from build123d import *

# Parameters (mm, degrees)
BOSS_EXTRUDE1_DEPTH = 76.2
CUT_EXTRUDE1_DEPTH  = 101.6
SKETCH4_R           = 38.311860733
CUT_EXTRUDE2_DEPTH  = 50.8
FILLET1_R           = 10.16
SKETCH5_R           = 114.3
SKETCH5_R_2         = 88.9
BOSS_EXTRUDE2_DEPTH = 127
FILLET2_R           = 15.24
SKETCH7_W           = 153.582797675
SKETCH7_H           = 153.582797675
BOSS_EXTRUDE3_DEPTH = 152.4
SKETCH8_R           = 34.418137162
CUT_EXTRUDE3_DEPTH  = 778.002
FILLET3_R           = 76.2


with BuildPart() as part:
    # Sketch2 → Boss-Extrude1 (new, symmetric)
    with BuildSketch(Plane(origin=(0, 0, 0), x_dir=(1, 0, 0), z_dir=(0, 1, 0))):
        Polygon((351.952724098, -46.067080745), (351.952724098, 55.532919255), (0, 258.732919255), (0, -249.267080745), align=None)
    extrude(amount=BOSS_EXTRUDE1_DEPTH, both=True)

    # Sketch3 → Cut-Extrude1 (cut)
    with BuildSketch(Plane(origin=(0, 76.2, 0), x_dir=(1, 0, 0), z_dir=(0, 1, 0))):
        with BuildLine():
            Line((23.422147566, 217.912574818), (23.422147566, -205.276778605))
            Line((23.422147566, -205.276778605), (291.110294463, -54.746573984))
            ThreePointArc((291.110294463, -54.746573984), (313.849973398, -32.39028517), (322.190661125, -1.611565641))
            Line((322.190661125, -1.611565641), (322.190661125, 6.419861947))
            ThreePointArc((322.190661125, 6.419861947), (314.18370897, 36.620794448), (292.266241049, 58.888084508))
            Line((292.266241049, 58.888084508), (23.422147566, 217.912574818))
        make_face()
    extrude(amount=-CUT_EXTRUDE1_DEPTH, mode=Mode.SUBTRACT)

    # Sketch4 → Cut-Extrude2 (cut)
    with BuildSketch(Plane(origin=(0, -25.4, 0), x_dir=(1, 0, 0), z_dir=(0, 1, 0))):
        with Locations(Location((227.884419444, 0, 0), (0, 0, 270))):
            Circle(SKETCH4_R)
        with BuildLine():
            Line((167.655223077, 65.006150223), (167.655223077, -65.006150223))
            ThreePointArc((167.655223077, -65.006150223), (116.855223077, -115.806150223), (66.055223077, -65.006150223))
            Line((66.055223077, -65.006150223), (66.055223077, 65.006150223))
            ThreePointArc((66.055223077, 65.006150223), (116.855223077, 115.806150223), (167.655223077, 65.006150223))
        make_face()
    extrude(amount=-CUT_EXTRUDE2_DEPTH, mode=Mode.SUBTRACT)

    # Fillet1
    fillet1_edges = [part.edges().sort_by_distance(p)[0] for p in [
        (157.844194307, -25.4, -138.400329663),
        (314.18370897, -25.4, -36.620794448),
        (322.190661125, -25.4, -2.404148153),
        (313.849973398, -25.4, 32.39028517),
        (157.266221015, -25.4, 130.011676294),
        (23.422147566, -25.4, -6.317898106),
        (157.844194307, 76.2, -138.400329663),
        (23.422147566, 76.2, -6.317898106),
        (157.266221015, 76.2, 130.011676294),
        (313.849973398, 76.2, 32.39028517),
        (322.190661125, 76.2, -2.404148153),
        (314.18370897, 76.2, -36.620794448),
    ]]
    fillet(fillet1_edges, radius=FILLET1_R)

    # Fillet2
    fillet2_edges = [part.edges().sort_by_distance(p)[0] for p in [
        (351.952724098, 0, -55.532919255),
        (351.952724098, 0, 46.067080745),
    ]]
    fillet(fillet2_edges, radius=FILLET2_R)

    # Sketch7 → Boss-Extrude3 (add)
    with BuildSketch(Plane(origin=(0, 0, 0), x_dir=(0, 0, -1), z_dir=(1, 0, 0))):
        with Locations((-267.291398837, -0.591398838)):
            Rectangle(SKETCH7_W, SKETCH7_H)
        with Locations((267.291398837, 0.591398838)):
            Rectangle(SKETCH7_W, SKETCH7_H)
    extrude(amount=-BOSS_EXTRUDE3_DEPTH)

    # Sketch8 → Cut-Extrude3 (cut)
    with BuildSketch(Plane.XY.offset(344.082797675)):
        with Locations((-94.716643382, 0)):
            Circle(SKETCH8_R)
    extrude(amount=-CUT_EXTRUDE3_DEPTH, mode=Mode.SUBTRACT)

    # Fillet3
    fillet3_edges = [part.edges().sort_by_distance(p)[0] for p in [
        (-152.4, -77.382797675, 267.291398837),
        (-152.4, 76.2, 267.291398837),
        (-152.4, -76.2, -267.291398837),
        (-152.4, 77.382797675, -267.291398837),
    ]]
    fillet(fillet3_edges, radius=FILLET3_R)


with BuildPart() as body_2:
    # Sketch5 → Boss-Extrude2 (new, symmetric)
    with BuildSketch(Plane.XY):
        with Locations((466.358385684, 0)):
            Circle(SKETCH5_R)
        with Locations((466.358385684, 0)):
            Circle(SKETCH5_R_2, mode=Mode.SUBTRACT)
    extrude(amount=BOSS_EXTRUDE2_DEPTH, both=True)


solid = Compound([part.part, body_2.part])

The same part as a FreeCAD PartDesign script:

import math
import FreeCAD as App
import Part
import Sketcher
from FreeCAD import Vector
Q = App.Units.Quantity


def edges_at(feature, points):
    """Names of the edges that pass closest to the given points."""
    edges = feature.Shape.Edges
    near = lambda p: min(range(len(edges)), key=lambda i: edges[i].distToShape(Part.Vertex(*p))[0])
    return sorted({f"Edge{near(p) + 1}" for p in points})

doc = App.newDocument("Part")
body = doc.addObject("PartDesign::Body", "Body")

sketch1 = body.newObject("Sketcher::SketchObject", "Sketch")
sketch1.AttachmentSupport = (doc.getObject("XZ_Plane"), [""])
sketch1.MapMode = "FlatFace"
sketch1.addGeometry(Part.LineSegment(Vector(351.952724, 46.067081, 0), Vector(351.952724, -55.532919, 0)), False)
sketch1.addGeometry(Part.LineSegment(Vector(351.952724, -55.532919, 0), Vector(0, -258.732919, 0)), False)
sketch1.addGeometry(Part.LineSegment(Vector(0, -258.732919, 0), Vector(0, 249.267081, 0)), False)
sketch1.addGeometry(Part.LineSegment(Vector(0, 249.267081, 0), Vector(351.952724, 46.067081, 0)), False)
sketch1.addConstraint(Sketcher.Constraint("Coincident", 0, 2, 1, 1))
sketch1.addConstraint(Sketcher.Constraint("Coincident", 1, 2, 2, 1))
sketch1.addConstraint(Sketcher.Constraint("Coincident", 2, 2, 3, 1))
sketch1.addConstraint(Sketcher.Constraint("Coincident", 3, 2, 0, 1))
sketch1.addConstraint(Sketcher.Constraint("Vertical", 0))
sketch1.addConstraint(Sketcher.Constraint("Vertical", 2))
sketch1.addConstraint(Sketcher.Constraint("PointOnObject", 1, 2, -2))
sketch1.addConstraint(Sketcher.Constraint("Equal", 1, 3))
sketch1.addConstraint(Sketcher.Constraint("DistanceY", 0, 2, 0, 1, Q("4 in")))
sketch1.addConstraint(Sketcher.Constraint("DistanceY", 2, 1, 2, 2, Q("20 in")))
sketch1.addConstraint(Sketcher.Constraint("Distance", 1, Q("16 in")))
sketch1.addConstraint(Sketcher.Constraint("DistanceY", 0, 2, -1, 1, Q("55.532919 mm")))
pad1 = body.newObject("PartDesign::Pad", "Pad")
pad1.Profile = sketch1
pad1.Length = Q("6 in")
pad1.Midplane = True

sketch2 = body.newObject("Sketcher::SketchObject", "Sketch001")
sketch2.AttachmentSupport = (doc.getObject("XZ_Plane"), [""])
sketch2.MapMode = "FlatFace"
sketch2.AttachmentOffset = App.Placement(Vector(0, 0, -3 * 25.4), App.Rotation())
sketch2.addGeometry(Part.LineSegment(Vector(23.422148, -217.912575, 0), Vector(23.422148, 205.276779, 0)), False)
sketch2.addGeometry(Part.LineSegment(Vector(23.422148, 205.276779, 0), Vector(291.110294, 54.746574, 0)), False)
sketch2.addGeometry(Part.ArcOfCircle(Part.Circle(Vector(261.230661, 1.611566, 0), Vector(0, 0, 1), 60.96), math.radians(0), math.radians(60.649463)), False)
sketch2.addGeometry(Part.LineSegment(Vector(322.190661, 1.611566, 0), Vector(322.190661, -6.419862, 0)), False)
sketch2.addGeometry(Part.ArcOfCircle(Part.Circle(Vector(261.230661, -6.419862, 0), Vector(0, 0, 1), 60.96), math.radians(-59.395179), math.radians(0)), False)
sketch2.addGeometry(Part.LineSegment(Vector(292.266241, -58.888085, 0), Vector(23.422148, -217.912575, 0)), False)
sketch2.addConstraint(Sketcher.Constraint("Coincident", 0, 2, 1, 1))
sketch2.addConstraint(Sketcher.Constraint("Tangent", 1, 2, 2, 2))
sketch2.addConstraint(Sketcher.Constraint("Tangent", 2, 1, 3, 1))
sketch2.addConstraint(Sketcher.Constraint("Tangent", 3, 2, 4, 2))
sketch2.addConstraint(Sketcher.Constraint("Tangent", 4, 1, 5, 1))
sketch2.addConstraint(Sketcher.Constraint("Coincident", 5, 2, 0, 1))
sketch2.addConstraint(Sketcher.Constraint("Vertical", 0))
sketch2.addConstraint(Sketcher.Constraint("Vertical", 3))
sketch2.addConstraint(Sketcher.Constraint("Equal", 2, 4))
sketch2.addConstraint(Sketcher.Constraint("Radius", 2, Q("2.4 in")))
sketch2.addConstraint(Sketcher.Constraint("DistanceY", 0, 1, 0, 2, Q("423.189353 mm")))
sketch2.addConstraint(Sketcher.Constraint("DistanceY", 3, 2, 3, 1, Q("8.031428 mm")))
sketch2.addConstraint(Sketcher.Constraint("DistanceX", -1, 1, 2, 3, Q("261.230661 mm")))
sketch2.addConstraint(Sketcher.Constraint("DistanceY", 4, 3, -1, 1, Q("6.419862 mm")))
sketch2.addConstraint(Sketcher.Constraint("DistanceY", -1, 1, 0, 2, Q("205.276779 mm")))
sketch2.addConstraint(Sketcher.Constraint("DistanceY", 2, 3, 1, 2, Q("53.135008 mm")))
pocket1 = body.newObject("PartDesign::Pocket", "Pocket")
pocket1.Profile = sketch2
pocket1.Length = Q("4 in")
pocket1.Reversed = True

sketch3 = body.newObject("Sketcher::SketchObject", "Sketch002")
sketch3.AttachmentSupport = (doc.getObject("XZ_Plane"), [""])
sketch3.MapMode = "FlatFace"
sketch3.AttachmentOffset = App.Placement(Vector(0, 0, 1 * 25.4), App.Rotation())
sketch3.addGeometry(Part.Circle(Vector(227.884419, 0, 0), Vector(0, 0, 1), 38.311861), False)
sketch3.addGeometry(Part.LineSegment(Vector(167.655223, 65.00615, 0), Vector(167.655223, -65.00615, 0)), False)
sketch3.addGeometry(Part.ArcOfCircle(Part.Circle(Vector(116.855223, -65.00615, 0), Vector(0, 0, 1), 50.8), math.radians(180), math.radians(360)), False)
sketch3.addGeometry(Part.LineSegment(Vector(66.055223, -65.00615, 0), Vector(66.055223, 65.00615, 0)), False)
sketch3.addGeometry(Part.ArcOfCircle(Part.Circle(Vector(116.855223, 65.00615, 0), Vector(0, 0, 1), 50.8), math.radians(0), math.radians(180)), False)
sketch3.addConstraint(Sketcher.Constraint("Tangent", 1, 2, 2, 2))
sketch3.addConstraint(Sketcher.Constraint("Tangent", 2, 1, 3, 1))
sketch3.addConstraint(Sketcher.Constraint("Tangent", 3, 2, 4, 2))
sketch3.addConstraint(Sketcher.Constraint("Tangent", 4, 1, 1, 1))
sketch3.addConstraint(Sketcher.Constraint("Vertical", 1))
sketch3.addConstraint(Sketcher.Constraint("Vertical", 3))
sketch3.addConstraint(Sketcher.Constraint("PointOnObject", 0, 3, -1))
sketch3.addConstraint(Sketcher.Constraint("Radius", 2, Q("2 in")))
sketch3.addConstraint(Sketcher.Constraint("Diameter", 0, Q("76.623721 mm")))
sketch3.addConstraint(Sketcher.Constraint("DistanceY", 1, 2, 1, 1, Q("130.0123 mm")))
sketch3.addConstraint(Sketcher.Constraint("DistanceX", -1, 1, 0, 3, Q("227.884419 mm")))
sketch3.addConstraint(Sketcher.Constraint("DistanceY", 2, 3, -1, 1, Q("65.00615 mm")))
sketch3.addConstraint(Sketcher.Constraint("DistanceX", -1, 1, 2, 3, Q("116.855223 mm")))
pocket2 = body.newObject("PartDesign::Pocket", "Pocket001")
pocket2.Profile = sketch3
pocket2.Length = Q("2 in")
pocket2.Reversed = True
doc.recompute()

fillet = body.newObject("PartDesign::Fillet", "Fillet")
fillet.Base = (pocket2, edges_at(pocket2, [
    (157.844, -25.4, -138.4),
    (314.184, -25.4, -36.621),
    (322.191, -25.4, -2.404),
    (313.85, -25.4, 32.39),
    (157.266, -25.4, 130.012),
    (23.422, -25.4, -6.318),
    (157.844, 76.2, -138.4),
    (23.422, 76.2, -6.318),
    (157.266, 76.2, 130.012),
    (313.85, 76.2, 32.39),
    (322.191, 76.2, -2.404),
    (314.184, 76.2, -36.621),
]))
fillet.Radius = Q("0.4 in")
doc.recompute()

fillet2 = body.newObject("PartDesign::Fillet", "Fillet001")
fillet2.Base = (fillet, edges_at(fillet, [(351.953, 0, -55.533), (351.953, 0, 46.067)]))
fillet2.Radius = Q("0.6 in")

sketch4 = body.newObject("Sketcher::SketchObject", "Sketch003")
sketch4.AttachmentSupport = (doc.getObject("YZ_Plane"), [""])
sketch4.MapMode = "FlatFace"
sketch4.addGeometry(Part.LineSegment(Vector(76.2, 344.082798, 0), Vector(-77.382798, 344.082798, 0)), False)
sketch4.addGeometry(Part.LineSegment(Vector(-77.382798, 344.082798, 0), Vector(-77.382798, 190.5, 0)), False)
sketch4.addGeometry(Part.LineSegment(Vector(-77.382798, 190.5, 0), Vector(76.2, 190.5, 0)), False)
sketch4.addGeometry(Part.LineSegment(Vector(76.2, 190.5, 0), Vector(76.2, 344.082798, 0)), False)
sketch4.addGeometry(Part.LineSegment(Vector(77.382798, -190.5, 0), Vector(-76.2, -190.5, 0)), False)
sketch4.addGeometry(Part.LineSegment(Vector(-76.2, -190.5, 0), Vector(-76.2, -344.082798, 0)), False)
sketch4.addGeometry(Part.LineSegment(Vector(-76.2, -344.082798, 0), Vector(77.382798, -344.082798, 0)), False)
sketch4.addGeometry(Part.LineSegment(Vector(77.382798, -344.082798, 0), Vector(77.382798, -190.5, 0)), False)
sketch4.addConstraint(Sketcher.Constraint("Coincident", 0, 2, 1, 1))
sketch4.addConstraint(Sketcher.Constraint("Coincident", 1, 2, 2, 1))
sketch4.addConstraint(Sketcher.Constraint("Coincident", 2, 2, 3, 1))
sketch4.addConstraint(Sketcher.Constraint("Coincident", 3, 2, 0, 1))
sketch4.addConstraint(Sketcher.Constraint("Coincident", 4, 2, 5, 1))
sketch4.addConstraint(Sketcher.Constraint("Coincident", 5, 2, 6, 1))
sketch4.addConstraint(Sketcher.Constraint("Coincident", 6, 2, 7, 1))
sketch4.addConstraint(Sketcher.Constraint("Coincident", 7, 2, 4, 1))
sketch4.addConstraint(Sketcher.Constraint("Horizontal", 0))
sketch4.addConstraint(Sketcher.Constraint("Vertical", 1))
sketch4.addConstraint(Sketcher.Constraint("Horizontal", 2))
sketch4.addConstraint(Sketcher.Constraint("Vertical", 3))
sketch4.addConstraint(Sketcher.Constraint("Horizontal", 4))
sketch4.addConstraint(Sketcher.Constraint("Vertical", 5))
sketch4.addConstraint(Sketcher.Constraint("Horizontal", 6))
sketch4.addConstraint(Sketcher.Constraint("Vertical", 7))
sketch4.addConstraint(Sketcher.Constraint("Symmetric", 2, 2, 4, 2, -1, 1))
sketch4.addConstraint(Sketcher.Constraint("Symmetric", 0, 2, 6, 2, -1, 1))
sketch4.addConstraint(Sketcher.Constraint("Equal", 6, 1))
sketch4.addConstraint(Sketcher.Constraint("DistanceX", -1, 1, 2, 2, Q("3 in")))
sketch4.addConstraint(Sketcher.Constraint("DistanceY", 4, 2, 1, 2, Q("15 in")))
sketch4.addConstraint(Sketcher.Constraint("DistanceX", 0, 2, 0, 1, Q("153.582798 mm")))
pad2 = body.newObject("PartDesign::Pad", "Pad001")
pad2.Profile = sketch4
pad2.Length = Q("6 in")
pad2.Reversed = True

sketch5 = body.newObject("Sketcher::SketchObject", "Sketch004")
sketch5.AttachmentSupport = (doc.getObject("XY_Plane"), [""])
sketch5.MapMode = "FlatFace"
sketch5.AttachmentOffset = App.Placement(Vector(0, 0, 344.082798), App.Rotation())
sketch5.addGeometry(Part.Circle(Vector(-94.716643, 0, 0), Vector(0, 0, 1), 34.418137), False)
sketch5.addConstraint(Sketcher.Constraint("PointOnObject", 0, 3, -1))
sketch5.addConstraint(Sketcher.Constraint("Diameter", 0, Q("68.836274 mm")))
sketch5.addConstraint(Sketcher.Constraint("DistanceX", 0, 3, -1, 1, Q("94.716643 mm")))
pocket3 = body.newObject("PartDesign::Pocket", "Pocket002")
pocket3.Profile = sketch5
pocket3.Length = Q("30.63 in")
doc.recompute()

fillet3 = body.newObject("PartDesign::Fillet", "Fillet002")
fillet3.Base = (pocket3, edges_at(pocket3, [
    (-152.4, -77.383, 267.291),
    (-152.4, 76.2, 267.291),
    (-152.4, -76.2, -267.291),
    (-152.4, 77.383, -267.291),
]))
fillet3.Radius = Q("3 in")
body2 = doc.addObject("PartDesign::Body", "Body001")

sketch6 = body2.newObject("Sketcher::SketchObject", "Sketch005")
sketch6.AttachmentSupport = (doc.getObject("XY_Plane001"), [""])
sketch6.MapMode = "FlatFace"
sketch6.addGeometry(Part.Circle(Vector(466.358386, 0, 0), Vector(0, 0, 1), 114.3), False)
sketch6.addGeometry(Part.Circle(Vector(466.358386, 0, 0), Vector(0, 0, 1), 88.9), False)
sketch6.addConstraint(Sketcher.Constraint("Coincident", 1, 3, 0, 3))
sketch6.addConstraint(Sketcher.Constraint("PointOnObject", 0, 3, -1))
sketch6.addConstraint(Sketcher.Constraint("Diameter", 0, Q("9 in")))
sketch6.addConstraint(Sketcher.Constraint("Diameter", 1, Q("7 in")))
sketch6.addConstraint(Sketcher.Constraint("DistanceX", -1, 1, 0, 3, Q("466.358386 mm")))
pad3 = body2.newObject("PartDesign::Pad", "Pad002")
pad3.Profile = sketch6
pad3.Length = Q("10 in")
pad3.Midplane = True

doc.recompute()
